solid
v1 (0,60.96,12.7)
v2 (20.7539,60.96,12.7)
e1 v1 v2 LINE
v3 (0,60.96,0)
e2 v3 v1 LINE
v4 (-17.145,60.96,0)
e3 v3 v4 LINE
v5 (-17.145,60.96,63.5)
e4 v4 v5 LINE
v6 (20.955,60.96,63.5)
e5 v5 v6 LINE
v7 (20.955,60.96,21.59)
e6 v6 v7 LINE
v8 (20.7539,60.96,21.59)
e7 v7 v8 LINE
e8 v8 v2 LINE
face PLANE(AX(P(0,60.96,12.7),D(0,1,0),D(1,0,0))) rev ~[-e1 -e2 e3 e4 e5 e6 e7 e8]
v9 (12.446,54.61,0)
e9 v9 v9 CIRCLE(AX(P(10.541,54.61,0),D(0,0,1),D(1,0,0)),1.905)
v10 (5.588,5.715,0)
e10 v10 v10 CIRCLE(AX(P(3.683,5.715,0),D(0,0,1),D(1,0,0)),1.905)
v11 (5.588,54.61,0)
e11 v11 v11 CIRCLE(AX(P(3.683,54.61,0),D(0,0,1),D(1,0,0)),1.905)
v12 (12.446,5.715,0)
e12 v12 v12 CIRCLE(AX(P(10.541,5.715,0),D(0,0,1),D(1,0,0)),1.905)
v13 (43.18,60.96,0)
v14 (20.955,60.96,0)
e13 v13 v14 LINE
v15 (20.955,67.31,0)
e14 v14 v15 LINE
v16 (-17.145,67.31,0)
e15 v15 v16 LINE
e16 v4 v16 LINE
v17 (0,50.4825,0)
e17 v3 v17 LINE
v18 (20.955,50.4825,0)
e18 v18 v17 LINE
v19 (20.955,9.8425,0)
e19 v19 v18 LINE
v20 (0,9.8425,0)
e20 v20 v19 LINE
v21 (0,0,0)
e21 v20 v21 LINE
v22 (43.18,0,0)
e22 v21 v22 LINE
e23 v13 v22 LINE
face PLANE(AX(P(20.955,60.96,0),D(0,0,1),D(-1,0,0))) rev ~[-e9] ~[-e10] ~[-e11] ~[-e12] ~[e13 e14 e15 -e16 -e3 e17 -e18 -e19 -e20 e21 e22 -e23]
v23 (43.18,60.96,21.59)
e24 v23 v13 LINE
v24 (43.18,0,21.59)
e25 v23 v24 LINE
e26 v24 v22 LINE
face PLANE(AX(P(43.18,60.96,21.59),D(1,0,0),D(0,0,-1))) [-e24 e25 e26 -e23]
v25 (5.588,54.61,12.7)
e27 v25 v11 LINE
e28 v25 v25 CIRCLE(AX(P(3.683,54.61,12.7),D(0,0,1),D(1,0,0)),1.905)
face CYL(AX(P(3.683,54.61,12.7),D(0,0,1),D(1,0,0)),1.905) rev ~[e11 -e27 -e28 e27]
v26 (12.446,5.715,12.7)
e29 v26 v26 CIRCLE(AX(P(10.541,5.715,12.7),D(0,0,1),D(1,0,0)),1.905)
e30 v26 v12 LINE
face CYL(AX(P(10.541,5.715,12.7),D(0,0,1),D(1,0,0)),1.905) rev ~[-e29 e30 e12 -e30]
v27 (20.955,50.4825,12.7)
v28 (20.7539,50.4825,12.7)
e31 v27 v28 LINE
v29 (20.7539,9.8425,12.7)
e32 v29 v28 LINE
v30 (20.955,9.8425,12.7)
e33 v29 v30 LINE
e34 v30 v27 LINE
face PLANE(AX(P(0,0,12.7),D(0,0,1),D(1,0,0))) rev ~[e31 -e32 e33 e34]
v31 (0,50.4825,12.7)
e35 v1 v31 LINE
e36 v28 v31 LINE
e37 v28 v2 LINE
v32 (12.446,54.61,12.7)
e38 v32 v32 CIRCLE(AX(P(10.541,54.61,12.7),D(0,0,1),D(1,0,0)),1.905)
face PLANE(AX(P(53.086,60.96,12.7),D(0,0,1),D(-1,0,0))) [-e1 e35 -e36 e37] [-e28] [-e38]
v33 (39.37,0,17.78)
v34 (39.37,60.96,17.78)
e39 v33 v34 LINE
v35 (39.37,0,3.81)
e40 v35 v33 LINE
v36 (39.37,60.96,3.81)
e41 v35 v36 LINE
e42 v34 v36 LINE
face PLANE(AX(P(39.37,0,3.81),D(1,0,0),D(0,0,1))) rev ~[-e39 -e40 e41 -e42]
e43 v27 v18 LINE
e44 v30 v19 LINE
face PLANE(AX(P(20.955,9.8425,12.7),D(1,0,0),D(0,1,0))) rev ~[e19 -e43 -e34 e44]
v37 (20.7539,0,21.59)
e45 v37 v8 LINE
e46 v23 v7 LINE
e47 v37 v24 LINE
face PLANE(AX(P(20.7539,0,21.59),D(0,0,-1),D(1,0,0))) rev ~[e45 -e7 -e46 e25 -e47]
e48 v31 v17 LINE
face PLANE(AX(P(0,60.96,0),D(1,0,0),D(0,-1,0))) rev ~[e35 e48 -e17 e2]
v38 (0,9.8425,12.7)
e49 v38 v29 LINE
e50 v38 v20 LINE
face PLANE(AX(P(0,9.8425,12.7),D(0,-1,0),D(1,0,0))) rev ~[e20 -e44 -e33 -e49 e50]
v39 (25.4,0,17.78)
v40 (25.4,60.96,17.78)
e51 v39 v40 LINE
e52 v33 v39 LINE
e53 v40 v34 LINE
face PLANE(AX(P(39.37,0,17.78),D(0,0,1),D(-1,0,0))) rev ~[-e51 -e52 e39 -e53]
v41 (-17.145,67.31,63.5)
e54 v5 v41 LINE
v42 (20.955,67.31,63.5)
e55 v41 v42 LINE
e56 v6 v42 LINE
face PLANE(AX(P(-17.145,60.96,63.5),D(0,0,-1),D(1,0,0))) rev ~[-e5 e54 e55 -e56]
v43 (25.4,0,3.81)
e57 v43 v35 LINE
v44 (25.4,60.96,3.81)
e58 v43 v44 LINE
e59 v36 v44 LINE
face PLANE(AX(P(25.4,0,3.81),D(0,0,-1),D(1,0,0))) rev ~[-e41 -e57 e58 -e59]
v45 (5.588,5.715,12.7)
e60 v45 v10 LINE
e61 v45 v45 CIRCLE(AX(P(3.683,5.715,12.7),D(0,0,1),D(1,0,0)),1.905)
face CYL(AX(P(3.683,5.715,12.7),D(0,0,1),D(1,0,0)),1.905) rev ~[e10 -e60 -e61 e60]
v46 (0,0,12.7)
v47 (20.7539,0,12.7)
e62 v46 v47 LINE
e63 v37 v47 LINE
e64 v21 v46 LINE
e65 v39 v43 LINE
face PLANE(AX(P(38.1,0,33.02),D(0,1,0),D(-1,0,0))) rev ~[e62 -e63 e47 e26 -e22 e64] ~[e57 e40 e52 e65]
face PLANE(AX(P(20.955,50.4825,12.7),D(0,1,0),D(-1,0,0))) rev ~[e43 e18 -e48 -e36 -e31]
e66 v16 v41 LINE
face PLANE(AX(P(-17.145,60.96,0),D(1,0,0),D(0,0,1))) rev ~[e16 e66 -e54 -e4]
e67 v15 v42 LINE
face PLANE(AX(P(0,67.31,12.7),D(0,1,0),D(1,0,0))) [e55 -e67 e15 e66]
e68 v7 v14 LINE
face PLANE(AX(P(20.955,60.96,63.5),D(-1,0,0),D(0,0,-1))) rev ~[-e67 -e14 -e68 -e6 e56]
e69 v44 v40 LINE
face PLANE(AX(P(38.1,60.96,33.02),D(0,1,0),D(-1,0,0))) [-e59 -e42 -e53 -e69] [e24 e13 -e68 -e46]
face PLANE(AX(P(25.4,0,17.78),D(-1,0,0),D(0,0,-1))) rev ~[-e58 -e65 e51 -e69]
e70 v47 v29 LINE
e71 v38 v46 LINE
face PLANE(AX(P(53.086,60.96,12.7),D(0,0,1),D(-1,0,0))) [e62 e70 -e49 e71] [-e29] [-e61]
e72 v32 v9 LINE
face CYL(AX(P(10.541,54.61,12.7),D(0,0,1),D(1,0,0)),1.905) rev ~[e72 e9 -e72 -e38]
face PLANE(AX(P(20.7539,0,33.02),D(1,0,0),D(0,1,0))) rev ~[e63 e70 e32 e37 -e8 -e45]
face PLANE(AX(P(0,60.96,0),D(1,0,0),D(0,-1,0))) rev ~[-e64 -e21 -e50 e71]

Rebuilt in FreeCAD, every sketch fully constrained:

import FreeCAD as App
import Part
import Sketcher
from FreeCAD import Vector
Q = App.Units.Quantity

doc = App.newDocument("Part")
body = doc.addObject("PartDesign::Body", "Body")

# Sketch on XY plane
sketch1 = doc.addObject("Sketcher::SketchObject", "Sketch")
body.addObject(sketch1)
sketch1.AttachmentSupport = (doc.XY_Plane, [""])
sketch1.MapMode = "FlatFace"
sketch1.addGeometry([
    Part.LineSegment(Vector(0, 60.96, 0), Vector(0, 0, 0)),
    Part.LineSegment(Vector(0, 0, 0), Vector(70.612, 0, 0)),
    Part.LineSegment(Vector(70.612, 0, 0), Vector(70.612, 60.96, 0)),
    Part.LineSegment(Vector(70.612, 60.96, 0), Vector(0, 60.96, 0)),
], False)
sketch1.addConstraint([
    Sketcher.Constraint("Coincident", 0, 2, 1, 1),
    Sketcher.Constraint("Coincident", 1, 2, 2, 1),
    Sketcher.Constraint("Coincident", 2, 2, 3, 1),
    Sketcher.Constraint("Coincident", 3, 2, 0, 1),
    Sketcher.Constraint("Vertical", 0),
    Sketcher.Constraint("Horizontal", 1),
    Sketcher.Constraint("Vertical", 2),
    Sketcher.Constraint("Horizontal", 3),
    Sketcher.Constraint("Coincident", 0, 2, -1, 1),
    Sketcher.Constraint("DistanceY", 0, 2, 0, 1, Q("2.4 in")),
    Sketcher.Constraint("DistanceX", 1, 1, 1, 2, Q("2.78 in")),
])
pad1 = doc.addObject("PartDesign::Pad", "Pad")
body.addObject(pad1)
pad1.Profile = sketch1
pad1.Length = Q("0.5 in")

# Sketch on XY plane
sketch2 = doc.addObject("Sketcher::SketchObject", "Sketch001")
body.addObject(sketch2)
sketch2.AttachmentSupport = (doc.XY_Plane, [""])
sketch2.MapMode = "FlatFace"
sketch2.AttachmentOffset = App.Placement(Vector(0, 0, 0.5 * 25.4), App.Rotation())
sketch2.addGeometry([
    Part.Circle(Vector(3.683, 54.61, 0), Vector(0, 0, 1), 1.905),
    Part.Circle(Vector(10.541, 54.61, 0), Vector(0, 0, 1), 1.905),
    Part.Circle(Vector(3.683, 5.715, 0), Vector(0, 0, 1), 1.905),
    Part.Circle(Vector(10.541, 5.715, 0), Vector(0, 0, 1), 1.905),
], False)
sketch2.addConstraint([
    Sketcher.Constraint("Equal", 0, 1),
    Sketcher.Constraint("Equal", 1, 2),
    Sketcher.Constraint("Equal", 2, 3),
    Sketcher.Constraint("Horizontal", 0, 3, 1, 3),
    Sketcher.Constraint("Horizontal", 2, 3, 3, 3),
    Sketcher.Constraint("Vertical", 0, 3, 2, 3),
    Sketcher.Constraint("Vertical", 1, 3, 3, 3),
    Sketcher.Constraint("Diameter", 0, Q("0.15 in")),
    Sketcher.Constraint("DistanceY", -1, 1, 0, 3, Q("2.15 in")),
    Sketcher.Constraint("DistanceX", 0, 3, 1, 3, Q("0.27 in")),
    Sketcher.Constraint("DistanceX", -1, 1, 0, 3, Q("0.145 in")),
    Sketcher.Constraint("DistanceY", -1, 1, 2, 3, Q("0.225 in")),
])
pocket1 = doc.addObject("PartDesign::Pocket", "Pocket")
body.addObject(pocket1)
pocket1.Profile = sketch2
pocket1.Length = Q("0.5 in")

# Sketch on XY plane
sketch3 = doc.addObject("Sketcher::SketchObject", "Sketch002")
body.addObject(sketch3)
sketch3.AttachmentSupport = (doc.XY_Plane, [""])
sketch3.MapMode = "FlatFace"
sketch3.AttachmentOffset = App.Placement(Vector(0, 0, 0.5 * 25.4), App.Rotation())
sketch3.addGeometry([
    Part.LineSegment(Vector(70.612, 0, 0), Vector(70.612, 60.96, 0)),
    Part.LineSegment(Vector(70.612, 60.96, 0), Vector(38.1, 60.96, 0)),
    Part.LineSegment(Vector(38.1, 60.96, 0), Vector(38.1, 0, 0)),
    Part.LineSegment(Vector(38.1, 0, 0), Vector(70.612, 0, 0)),
], False)
sketch3.addConstraint([
    Sketcher.Constraint("Coincident", 0, 2, 1, 1),
    Sketcher.Constraint("Coincident", 1, 2, 2, 1),
    Sketcher.Constraint("Coincident", 2, 2, 3, 1),
    Sketcher.Constraint("Coincident", 3, 2, 0, 1),
    Sketcher.Constraint("Vertical", 0),
    Sketcher.Constraint("Horizontal", 1),
    Sketcher.Constraint("Vertical", 2),
    Sketcher.Constraint("Horizontal", 3),
    Sketcher.Constraint("PointOnObject", 2, 2, -1),
    Sketcher.Constraint("DistanceX", -1, 1, 1, 2, Q("1.5 in")),
    Sketcher.Constraint("DistanceY", 0, 1, 0, 2, Q("2.4 in")),
    Sketcher.Constraint("DistanceX", 1, 2, 1, 1, Q("1.28 in")),
])
pad2 = doc.addObject("PartDesign::Pad", "Pad001")
body.addObject(pad2)
pad2.Profile = sketch3
pad2.Length = Q("0.8 in")

# Sketch on XY plane
sketch4 = doc.addObject("Sketcher::SketchObject", "Sketch003")
body.addObject(sketch4)
sketch4.AttachmentSupport = (doc.XY_Plane, [""])
sketch4.MapMode = "FlatFace"
sketch4.AttachmentOffset = App.Placement(Vector(0, 0, 0.5 * 25.4), App.Rotation())
sketch4.addGeometry([
    Part.LineSegment(Vector(20.955, 50.4825, 0), Vector(0, 50.4825, 0)),
    Part.LineSegment(Vector(0, 50.4825, 0), Vector(0, 9.8425, 0)),
    Part.LineSegment(Vector(0, 9.8425, 0), Vector(20.955, 9.8425, 0)),
    Part.LineSegment(Vector(20.955, 9.8425, 0), Vector(20.955, 50.4825, 0)),
], False)
sketch4.addConstraint([
    Sketcher.Constraint("Coincident", 0, 2, 1, 1),
    Sketcher.Constraint("Coincident", 1, 2, 2, 1),
    Sketcher.Constraint("Coincident", 2, 2, 3, 1),
    Sketcher.Constraint("Coincident", 3, 2, 0, 1),
    Sketcher.Constraint("Horizontal", 0),
    Sketcher.Constraint("Vertical", 1),
    Sketcher.Constraint("Horizontal", 2),
    Sketcher.Constraint("Vertical", 3),
    Sketcher.Constraint("PointOnObject", 0, 2, -2),
    Sketcher.Constraint("DistanceY", 1, 2, 1, 1, Q("1.6 in")),
    Sketcher.Constraint("DistanceX", 0, 2, 0, 1, Q("0.825 in")),
    Sketcher.Constraint("DistanceY", -1, 1, 0, 2, Q("1.9875 in")),
])
pocket2 = doc.addObject("PartDesign::Pocket", "Pocket001")
body.addObject(pocket2)
pocket2.Profile = sketch4
pocket2.Length = Q("0.5 in")

# Sketch on XZ plane
sketch5 = doc.addObject("Sketcher::SketchObject", "Sketch004")
body.addObject(sketch5)
sketch5.AttachmentSupport = (doc.XZ_Plane, [""])
sketch5.MapMode = "FlatFace"
sketch5.AttachmentOffset = App.Placement(Vector(0, 0, -2.4 * 25.4), App.Rotation())
sketch5.addGeometry([
    Part.LineSegment(Vector(12.446, 0, 0), Vector(12.446, 12.7, 0)),
    Part.LineSegment(Vector(12.446, 12.7, 0), Vector(53.086, 12.7, 0)),
    Part.LineSegment(Vector(53.086, 12.7, 0), Vector(53.086, 0, 0)),
    Part.LineSegment(Vector(53.086, 0, 0), Vector(12.446, 0, 0)),
], False)
sketch5.addConstraint([
    Sketcher.Constraint("Coincident", 0, 2, 1, 1),
    Sketcher.Constraint("Coincident", 1, 2, 2, 1),
    Sketcher.Constraint("Coincident", 2, 2, 3, 1),
    Sketcher.Constraint("Coincident", 3, 2, 0, 1),
    Sketcher.Constraint("Vertical", 0),
    Sketcher.Constraint("Horizontal", 1),
    Sketcher.Constraint("Vertical", 2),
    Sketcher.Constraint("Horizontal", 3),
    Sketcher.Constraint("PointOnObject", 2, 2, -1),
    Sketcher.Constraint("DistanceX", 1, 1, 1, 2, Q("1.6 in")),
    Sketcher.Constraint("DistanceY", 0, 1, 0, 2, Q("0.5 in")),
    Sketcher.Constraint("DistanceX", -1, 1, 0, 2, Q("0.49 in")),
])
pad3 = doc.addObject("PartDesign::Pad", "Pad002")
body.addObject(pad3)
pad3.Profile = sketch5
pad3.Length = Q("0.8 in")
pad3.Reversed = True

# Sketch on XY plane
sketch6 = doc.addObject("Sketcher::SketchObject", "Sketch005")
body.addObject(sketch6)
sketch6.AttachmentSupport = (doc.XY_Plane, [""])
sketch6.MapMode = "FlatFace"
sketch6.AttachmentOffset = App.Placement(Vector(0, 0, 0.5 * 25.4), App.Rotation())
sketch6.addGeometry([
    Part.Circle(Vector(20.955, 76.2, 0), Vector(0, 0, 1), 1.905),
    Part.Circle(Vector(20.955, 67.31, 0), Vector(0, 0, 1), 1.905),
    Part.Circle(Vector(40.64, 67.31, 0), Vector(0, 0, 1), 1.905),
    Part.Circle(Vector(40.64, 76.2, 0), Vector(0, 0, 1), 1.905),
], False)
sketch6.addConstraint([
    Sketcher.Constraint("Equal", 0, 1),
    Sketcher.Constraint("Equal", 1, 2),
    Sketcher.Constraint("Equal", 2, 3),
    Sketcher.Constraint("Horizontal", 1, 3, 2, 3),
    Sketcher.Constraint("Horizontal", 0, 3, 3, 3),
    Sketcher.Constraint("Vertical", 0, 3, 1, 3),
    Sketcher.Constraint("Vertical", 2, 3, 3, 3),
    Sketcher.Constraint("Diameter", 0, Q("0.15 in")),
    Sketcher.Constraint("DistanceY", -1, 1, 0, 3, Q("3 in")),
    Sketcher.Constraint("DistanceX", -1, 1, 2, 3, Q("1.6 in")),
    Sketcher.Constraint("DistanceY", -1, 1, 1, 3, Q("2.65 in")),
    Sketcher.Constraint("DistanceX", -1, 1, 0, 3, Q("0.825 in")),
])
pocket3 = doc.addObject("PartDesign::Pocket", "Pocket002")
body.addObject(pocket3)
pocket3.Profile = sketch6
pocket3.Length = Q("0.5 in")

# Sketch on XY plane
sketch7 = doc.addObject("Sketcher::SketchObject", "Sketch006")
body.addObject(sketch7)
sketch7.AttachmentSupport = (doc.XY_Plane, [""])
sketch7.MapMode = "FlatFace"
sketch7.AttachmentOffset = App.Placement(Vector(0, 0, 0.5 * 25.4), App.Rotation())
sketch7.addGeometry([
    Part.LineSegment(Vector(12.446, 81.28, 0), Vector(12.446, 60.96, 0)),
    Part.LineSegment(Vector(12.446, 60.96, 0), Vector(53.086, 60.96, 0)),
    Part.LineSegment(Vector(53.086, 60.96, 0), Vector(53.086, 81.28, 0)),
    Part.LineSegment(Vector(53.086, 81.28, 0), Vector(12.446, 81.28, 0)),
], False)
sketch7.addConstraint([
    Sketcher.Constraint("Coincident", 0, 2, 1, 1),
    Sketcher.Constraint("Coincident", 1, 2, 2, 1),
    Sketcher.Constraint("Coincident", 2, 2, 3, 1),
    Sketcher.Constraint("Coincident", 3, 2, 0, 1),
    Sketcher.Constraint("Vertical", 0),
    Sketcher.Constraint("Horizontal", 1),
    Sketcher.Constraint("Vertical", 2),
    Sketcher.Constraint("Horizontal", 3),
    Sketcher.Constraint("DistanceX", 1, 1, 1, 2, Q("1.6 in")),
    Sketcher.Constraint("DistanceY", 0, 2, 0, 1, Q("0.8 in")),
    Sketcher.Constraint("DistanceY", -1, 1, 0, 2, Q("2.4 in")),
    Sketcher.Constraint("DistanceX", -1, 1, 0, 2, Q("0.49 in")),
])
pocket4 = doc.addObject("PartDesign::Pocket", "Pocket003")
body.addObject(pocket4)
pocket4.Profile = sketch7
pocket4.Length = Q("1 in")

# Sketch on XY plane
sketch8 = doc.addObject("Sketcher::SketchObject", "Sketch007")
body.addObject(sketch8)
sketch8.AttachmentSupport = (doc.XY_Plane, [""])
sketch8.MapMode = "FlatFace"
sketch8.AttachmentOffset = App.Placement(Vector(0, 0, 1.3 * 25.4), App.Rotation())
sketch8.addGeometry([
    Part.LineSegment(Vector(38.1, 0, 0), Vector(38.1, 60.96, 0)),
    Part.LineSegment(Vector(38.1, 60.96, 0), Vector(20.7539, 60.96, 0)),
    Part.LineSegment(Vector(20.7539, 60.96, 0), Vector(20.7539, 0, 0)),
    Part.LineSegment(Vector(20.7539, 0, 0), Vector(38.1, 0, 0)),
], False)
sketch8.addConstraint([
    Sketcher.Constraint("Coincident", 0, 2, 1, 1),
    Sketcher.Constraint("Coincident", 1, 2, 2, 1),
    Sketcher.Constraint("Coincident", 2, 2, 3, 1),
    Sketcher.Constraint("Coincident", 3, 2, 0, 1),
    Sketcher.Constraint("Vertical", 0),
    Sketcher.Constraint("Horizontal", 1),
    Sketcher.Constraint("Vertical", 2),
    Sketcher.Constraint("Horizontal", 3),
    Sketcher.Constraint("PointOnObject", 2, 2, -1),
    Sketcher.Constraint("DistanceY", 0, 1, 0, 2, Q("2.4 in")),
    Sketcher.Constraint("DistanceX", -1, 1, 0, 2, Q("1.5 in")),
    Sketcher.Constraint("DistanceX", 1, 2, 1, 1, Q("17.346 mm")),
])
pad4 = doc.addObject("PartDesign::Pad", "Pad003")
body.addObject(pad4)
pad4.Profile = sketch8
pad4.Length = Q("0.8 in")
pad4.Reversed = True

# Sketch on XZ plane
sketch9 = doc.addObject("Sketcher::SketchObject", "Sketch008")
body.addObject(sketch9)
sketch9.AttachmentSupport = (doc.XZ_Plane, [""])
sketch9.MapMode = "FlatFace"
sketch9.addGeometry([
    Part.LineSegment(Vector(70.612, 0, 0), Vector(70.612, 33.02, 0)),
    Part.LineSegment(Vector(70.612, 33.02, 0), Vector(45.212, 33.02, 0)),
    Part.LineSegment(Vector(45.212, 33.02, 0), Vector(45.212, 0, 0)),
    Part.LineSegment(Vector(45.212, 0, 0), Vector(70.612, 0, 0)),
], False)
sketch9.addConstraint([
    Sketcher.Constraint("Coincident", 0, 2, 1, 1),
    Sketcher.Constraint("Coincident", 1, 2, 2, 1),
    Sketcher.Constraint("Coincident", 2, 2, 3, 1),
    Sketcher.Constraint("Coincident", 3, 2, 0, 1),
    Sketcher.Constraint("Vertical", 0),
    Sketcher.Constraint("Horizontal", 1),
    Sketcher.Constraint("Vertical", 2),
    Sketcher.Constraint("Horizontal", 3),
    Sketcher.Constraint("PointOnObject", 2, 2, -1),
    Sketcher.Constraint("DistanceX", 1, 2, 1, 1, Q("1 in")),
    Sketcher.Constraint("DistanceY", 0, 1, 0, 2, Q("1.3 in")),
    Sketcher.Constraint("DistanceX", -1, 1, 0, 2, Q("2.78 in")),
])
pocket5 = doc.addObject("PartDesign::Pocket", "Pocket004")
body.addObject(pocket5)
pocket5.Profile = sketch9
pocket5.Length = Q("3 in")

# Sketch on XZ plane
sketch10 = doc.addObject("Sketcher::SketchObject", "Sketch009")
body.addObject(sketch10)
sketch10.AttachmentSupport = (doc.XZ_Plane, [""])
sketch10.MapMode = "FlatFace"
sketch10.addGeometry([
    Part.LineSegment(Vector(25.4, 17.78, 0), Vector(25.4, 3.81, 0)),
    Part.LineSegment(Vector(25.4, 3.81, 0), Vector(39.37, 3.81, 0)),
    Part.LineSegment(Vector(39.37, 3.81, 0), Vector(39.37, 17.78, 0)),
    Part.LineSegment(Vector(39.37, 17.78, 0), Vector(25.4, 17.78, 0)),
], False)
sketch10.addConstraint([
    Sketcher.Constraint("Coincident", 0, 2, 1, 1),
    Sketcher.Constraint("Coincident", 1, 2, 2, 1),
    Sketcher.Constraint("Coincident", 2, 2, 3, 1),
    Sketcher.Constraint("Coincident", 3, 2, 0, 1),
    Sketcher.Constraint("Vertical", 0),
    Sketcher.Constraint("Horizontal", 1),
    Sketcher.Constraint("Vertical", 2),
    Sketcher.Constraint("Horizontal", 3),
    Sketcher.Constraint("Equal", 3, 0),
    Sketcher.Constraint("DistanceX", 1, 1, 1, 2, Q("0.55 in")),
    Sketcher.Constraint("DistanceX", -1, 1, 0, 2, Q("1 in")),
    Sketcher.Constraint("DistanceY", -1, 1, 2, 2, Q("0.7 in")),
])
pocket6 = doc.addObject("PartDesign::Pocket", "Pocket005")
body.addObject(pocket6)
pocket6.Profile = sketch10
pocket6.Length = Q("3 in")

# Sketch on XZ plane
sketch11 = doc.addObject("Sketcher::SketchObject", "Sketch010")
body.addObject(sketch11)
sketch11.AttachmentSupport = (doc.XZ_Plane, [""])
sketch11.MapMode = "FlatFace"
sketch11.addGeometry([
    Part.LineSegment(Vector(45.212, 33.02, 0), Vector(20.7539, 33.02, 0)),
    Part.LineSegment(Vector(20.7539, 33.02, 0), Vector(20.7539, 21.59, 0)),
    Part.LineSegment(Vector(20.7539, 21.59, 0), Vector(45.212, 21.59, 0)),
    Part.LineSegment(Vector(45.212, 21.59, 0), Vector(45.212, 33.02, 0)),
], False)
sketch11.addConstraint([
    Sketcher.Constraint("Coincident", 0, 2, 1, 1),
    Sketcher.Constraint("Coincident", 1, 2, 2, 1),
    Sketcher.Constraint("Coincident", 2, 2, 3, 1),
    Sketcher.Constraint("Coincident", 3, 2, 0, 1),
    Sketcher.Constraint("Horizontal", 0),
    Sketcher.Constraint("Vertical", 1),
    Sketcher.Constraint("Horizontal", 2),
    Sketcher.Constraint("Vertical", 3),
    Sketcher.Constraint("DistanceY", 1, 2, 1, 1, Q("0.45 in")),
    Sketcher.Constraint("DistanceY", -1, 1, 0, 2, Q("1.3 in")),
    Sketcher.Constraint("DistanceX", -1, 1, 2, 2, Q("1.78 in")),
    Sketcher.Constraint("DistanceX", 0, 2, 0, 1, Q("24.458 mm")),
])
pocket7 = doc.addObject("PartDesign::Pocket", "Pocket006")
body.addObject(pocket7)
pocket7.Profile = sketch11
pocket7.Length = Q("3 in")

# Sketch on XZ plane
sketch12 = doc.addObject("Sketcher::SketchObject", "Sketch011")
body.addObject(sketch12)
sketch12.AttachmentSupport = (doc.XZ_Plane, [""])
sketch12.MapMode = "FlatFace"
sketch12.AttachmentOffset = App.Placement(Vector(0, 0, -2.4 * 25.4), App.Rotation())
sketch12.addGeometry([
    Part.LineSegment(Vector(43.18, 21.59, 0), Vector(45.212, 21.59, 0)),
    Part.LineSegment(Vector(45.212, 21.59, 0), Vector(45.212, 0, 0)),
    Part.LineSegment(Vector(45.212, 0, 0), Vector(43.18, 0, 0)),
    Part.LineSegment(Vector(43.18, 0, 0), Vector(43.18, 21.59, 0)),
], False)
sketch12.addConstraint([
    Sketcher.Constraint("Coincident", 0, 2, 1, 1),
    Sketcher.Constraint("Coincident", 1, 2, 2, 1),
    Sketcher.Constraint("Coincident", 2, 2, 3, 1),
    Sketcher.Constraint("Coincident", 3, 2, 0, 1),
    Sketcher.Constraint("Horizontal", 0),
    Sketcher.Constraint("Vertical", 1),
    Sketcher.Constraint("Horizontal", 2),
    Sketcher.Constraint("Vertical", 3),
    Sketcher.Constraint("PointOnObject", 1, 2, -1),
    Sketcher.Constraint("DistanceX", 0, 1, 0, 2, Q("0.08 in")),
    Sketcher.Constraint("DistanceY", 1, 2, 1, 1, Q("0.85 in")),
    Sketcher.Constraint("DistanceX", -1, 1, 2, 2, Q("1.7 in")),
])
pocket8 = doc.addObject("PartDesign::Pocket", "Pocket007")
body.addObject(pocket8)
pocket8.Profile = sketch12
pocket8.Length = Q("3 in")
pocket8.Reversed = True

# Sketch on XZ plane
sketch13 = doc.addObject("Sketcher::SketchObject", "Sketch012")
body.addObject(sketch13)
sketch13.AttachmentSupport = (doc.XZ_Plane, [""])
sketch13.MapMode = "FlatFace"
sketch13.AttachmentOffset = App.Placement(Vector(0, 0, -2.4 * 25.4), App.Rotation())
sketch13.addGeometry([
    Part.LineSegment(Vector(20.955, 63.5, 0), Vector(20.955, 0, 0)),
    Part.LineSegment(Vector(20.955, 0, 0), Vector(-17.145, 0, 0)),
    Part.LineSegment(Vector(-17.145, 0, 0), Vector(-17.145, 63.5, 0)),
    Part.LineSegment(Vector(-17.145, 63.5, 0), Vector(20.955, 63.5, 0)),
], False)
sketch13.addConstraint([
    Sketcher.Constraint("Coincident", 0, 2, 1, 1),
    Sketcher.Constraint("Coincident", 1, 2, 2, 1),
    Sketcher.Constraint("Coincident", 2, 2, 3, 1),
    Sketcher.Constraint("Coincident", 3, 2, 0, 1),
    Sketcher.Constraint("Vertical", 0),
    Sketcher.Constraint("Horizontal", 1),
    Sketcher.Constraint("Vertical", 2),
    Sketcher.Constraint("Horizontal", 3),
    Sketcher.Constraint("PointOnObject", 0, 2, -1),
    Sketcher.Constraint("DistanceX", 1, 2, 1, 1, Q("1.5 in")),
    Sketcher.Constraint("DistanceY", 0, 2, 0, 1, Q("2.5 in")),
    Sketcher.Constraint("DistanceX", -1, 1, 0, 2, Q("0.825 in")),
])
pad5 = doc.addObject("PartDesign::Pad", "Pad004")
body.addObject(pad5)
pad5.Profile = sketch13
pad5.Length = Q("0.25 in")
pad5.Reversed = True

doc.recompute()
